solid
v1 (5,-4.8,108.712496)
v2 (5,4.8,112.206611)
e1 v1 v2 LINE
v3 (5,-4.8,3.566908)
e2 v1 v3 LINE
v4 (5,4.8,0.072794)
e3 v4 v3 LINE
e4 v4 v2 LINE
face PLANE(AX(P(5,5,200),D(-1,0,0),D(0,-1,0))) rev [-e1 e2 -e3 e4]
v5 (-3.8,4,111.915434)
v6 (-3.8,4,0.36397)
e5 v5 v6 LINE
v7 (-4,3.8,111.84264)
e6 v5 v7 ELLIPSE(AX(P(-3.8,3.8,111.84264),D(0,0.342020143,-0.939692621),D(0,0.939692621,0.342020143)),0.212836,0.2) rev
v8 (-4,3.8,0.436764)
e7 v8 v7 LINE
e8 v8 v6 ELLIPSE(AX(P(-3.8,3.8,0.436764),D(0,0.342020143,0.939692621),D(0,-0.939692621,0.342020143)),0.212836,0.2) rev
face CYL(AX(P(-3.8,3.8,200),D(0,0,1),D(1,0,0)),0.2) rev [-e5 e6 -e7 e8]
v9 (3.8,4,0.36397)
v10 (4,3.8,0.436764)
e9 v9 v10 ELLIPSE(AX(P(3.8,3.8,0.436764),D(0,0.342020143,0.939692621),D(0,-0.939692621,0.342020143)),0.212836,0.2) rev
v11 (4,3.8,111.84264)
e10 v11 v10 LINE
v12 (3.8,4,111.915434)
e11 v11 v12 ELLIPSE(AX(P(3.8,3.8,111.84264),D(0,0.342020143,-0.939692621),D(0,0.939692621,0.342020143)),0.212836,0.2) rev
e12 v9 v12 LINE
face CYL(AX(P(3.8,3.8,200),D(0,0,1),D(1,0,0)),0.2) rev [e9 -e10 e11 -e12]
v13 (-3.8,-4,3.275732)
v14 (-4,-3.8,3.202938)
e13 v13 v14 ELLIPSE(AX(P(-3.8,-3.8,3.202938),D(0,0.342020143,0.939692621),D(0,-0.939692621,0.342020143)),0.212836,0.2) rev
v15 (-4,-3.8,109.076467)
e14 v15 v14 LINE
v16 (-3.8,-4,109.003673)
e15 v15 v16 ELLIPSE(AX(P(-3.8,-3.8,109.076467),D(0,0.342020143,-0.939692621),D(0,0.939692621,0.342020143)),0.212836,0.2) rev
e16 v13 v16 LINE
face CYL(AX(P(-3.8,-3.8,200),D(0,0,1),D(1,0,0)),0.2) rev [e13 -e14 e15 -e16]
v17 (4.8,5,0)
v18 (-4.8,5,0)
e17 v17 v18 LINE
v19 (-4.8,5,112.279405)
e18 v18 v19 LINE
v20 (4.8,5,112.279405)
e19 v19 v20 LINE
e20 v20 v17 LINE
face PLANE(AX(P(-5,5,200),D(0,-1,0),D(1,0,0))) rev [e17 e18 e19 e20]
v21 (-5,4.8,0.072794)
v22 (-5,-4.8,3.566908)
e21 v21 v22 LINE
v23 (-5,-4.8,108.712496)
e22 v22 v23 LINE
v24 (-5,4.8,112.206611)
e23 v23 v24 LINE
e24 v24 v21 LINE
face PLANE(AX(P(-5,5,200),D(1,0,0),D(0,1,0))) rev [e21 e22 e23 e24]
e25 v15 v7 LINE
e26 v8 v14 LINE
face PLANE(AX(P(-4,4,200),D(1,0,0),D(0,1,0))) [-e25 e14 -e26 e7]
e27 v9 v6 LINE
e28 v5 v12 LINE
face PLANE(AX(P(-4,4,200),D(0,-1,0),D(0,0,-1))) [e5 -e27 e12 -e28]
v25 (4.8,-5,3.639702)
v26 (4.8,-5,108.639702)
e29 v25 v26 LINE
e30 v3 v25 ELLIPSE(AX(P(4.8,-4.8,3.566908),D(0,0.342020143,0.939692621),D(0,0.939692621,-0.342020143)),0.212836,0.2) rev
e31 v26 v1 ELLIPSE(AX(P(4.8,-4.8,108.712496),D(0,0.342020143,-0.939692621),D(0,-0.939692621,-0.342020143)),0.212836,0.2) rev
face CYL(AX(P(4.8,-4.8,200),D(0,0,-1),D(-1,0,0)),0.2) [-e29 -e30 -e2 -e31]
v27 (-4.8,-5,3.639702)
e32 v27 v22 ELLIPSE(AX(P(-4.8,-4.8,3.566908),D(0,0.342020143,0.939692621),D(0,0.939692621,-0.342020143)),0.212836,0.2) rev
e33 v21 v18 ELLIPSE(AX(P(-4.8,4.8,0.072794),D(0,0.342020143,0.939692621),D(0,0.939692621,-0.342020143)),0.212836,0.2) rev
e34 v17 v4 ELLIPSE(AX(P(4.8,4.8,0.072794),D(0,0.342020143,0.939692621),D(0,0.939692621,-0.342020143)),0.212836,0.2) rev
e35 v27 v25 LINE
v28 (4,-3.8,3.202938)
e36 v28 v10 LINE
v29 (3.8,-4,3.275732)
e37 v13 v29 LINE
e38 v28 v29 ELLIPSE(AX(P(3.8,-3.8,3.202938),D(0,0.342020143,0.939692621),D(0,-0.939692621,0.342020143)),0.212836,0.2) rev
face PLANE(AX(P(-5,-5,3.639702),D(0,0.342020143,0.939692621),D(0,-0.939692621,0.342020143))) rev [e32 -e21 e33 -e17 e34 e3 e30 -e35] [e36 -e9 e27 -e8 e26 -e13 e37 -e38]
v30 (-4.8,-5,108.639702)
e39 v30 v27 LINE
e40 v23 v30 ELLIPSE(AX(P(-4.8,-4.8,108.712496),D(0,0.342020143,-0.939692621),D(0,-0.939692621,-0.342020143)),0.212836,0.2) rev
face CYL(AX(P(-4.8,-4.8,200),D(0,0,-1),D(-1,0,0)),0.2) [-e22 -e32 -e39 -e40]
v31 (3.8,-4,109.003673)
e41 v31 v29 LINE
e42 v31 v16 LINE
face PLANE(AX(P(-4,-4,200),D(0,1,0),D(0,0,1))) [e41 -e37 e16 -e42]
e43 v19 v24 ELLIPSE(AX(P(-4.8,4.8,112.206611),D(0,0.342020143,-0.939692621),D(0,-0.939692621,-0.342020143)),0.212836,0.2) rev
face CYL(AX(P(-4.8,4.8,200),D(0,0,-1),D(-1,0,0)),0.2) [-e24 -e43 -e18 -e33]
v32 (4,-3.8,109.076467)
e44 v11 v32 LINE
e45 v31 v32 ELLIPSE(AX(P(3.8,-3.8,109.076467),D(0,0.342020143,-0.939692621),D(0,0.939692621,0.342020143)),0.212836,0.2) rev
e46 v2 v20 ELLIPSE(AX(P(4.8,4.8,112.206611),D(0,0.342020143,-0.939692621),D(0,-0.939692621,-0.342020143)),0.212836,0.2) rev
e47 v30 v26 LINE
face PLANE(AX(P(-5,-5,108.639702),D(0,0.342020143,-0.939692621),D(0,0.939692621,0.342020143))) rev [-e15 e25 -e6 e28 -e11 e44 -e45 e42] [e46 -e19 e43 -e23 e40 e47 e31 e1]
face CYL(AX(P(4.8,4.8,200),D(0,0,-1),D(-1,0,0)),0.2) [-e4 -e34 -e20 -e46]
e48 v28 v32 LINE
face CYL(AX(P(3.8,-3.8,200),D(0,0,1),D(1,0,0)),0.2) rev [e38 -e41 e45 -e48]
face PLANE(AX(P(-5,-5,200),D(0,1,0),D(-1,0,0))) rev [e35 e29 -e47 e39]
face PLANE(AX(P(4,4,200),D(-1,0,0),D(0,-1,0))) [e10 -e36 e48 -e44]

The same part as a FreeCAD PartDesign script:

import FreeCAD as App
import Part
import Sketcher

V = App.Vector
Q = App.Units.Quantity


def edges_at(feature, points):
    """Names of the edges that pass closest to the given points."""
    edges = feature.Shape.Edges
    near = lambda p: min(range(len(edges)), key=lambda i: edges[i].distToShape(Part.Vertex(*p))[0])
    return sorted({f"Edge{near(p) + 1}" for p in points})


def add_polygon(sketch, points):
    """Adds a closed chain of lines whose ends are joined by coincident constraints."""
    first, n = sketch.GeometryCount, len(points)
    for a, b in zip(points, points[1:] + points[:1]):
        sketch.addGeometry(Part.LineSegment(App.Vector(*a, 0), App.Vector(*b, 0)), False)
    for i in range(n):
        sketch.addConstraint(Sketcher.Constraint("Coincident", first + i, 2, first + (i + 1) % n, 1))

doc = App.newDocument("Part")
body = doc.addObject("PartDesign::Body", "Body")

sketch1 = body.newObject("Sketcher::SketchObject", "Sketch")
sketch1.AttachmentSupport = (doc.getObject("XY_Plane"), [""])
sketch1.MapMode = "FlatFace"
add_polygon(sketch1, [(-5, 5), (-5, -5), (5, -5), (5, 5)])
add_polygon(sketch1, [(4, -4), (-4, -4), (-4, 4), (4, 4)])
sketch1.addConstraint(Sketcher.Constraint("Vertical", 0))
sketch1.addConstraint(Sketcher.Constraint("Horizontal", 1))
sketch1.addConstraint(Sketcher.Constraint("Vertical", 2))
sketch1.addConstraint(Sketcher.Constraint("Horizontal", 3))
sketch1.addConstraint(Sketcher.Constraint("Horizontal", 4))
sketch1.addConstraint(Sketcher.Constraint("Vertical", 5))
sketch1.addConstraint(Sketcher.Constraint("Horizontal", 6))
sketch1.addConstraint(Sketcher.Constraint("Vertical", 7))
sketch1.addConstraint(Sketcher.Constraint("Symmetric", 0, 2, 2, 2, -1, 1))
sketch1.addConstraint(Sketcher.Constraint("Symmetric", 4, 2, 6, 2, -1, 1))
sketch1.addConstraint(Sketcher.Constraint("Equal", 3, 0))
sketch1.addConstraint(Sketcher.Constraint("Equal", 6, 5))
sketch1.addConstraint(Sketcher.Constraint("DistanceX", 1, 1, 1, 2, 10.0))
sketch1.addConstraint(Sketcher.Constraint("DistanceX", 4, 2, 4, 1, 8.0))
pad1 = body.newObject("PartDesign::Pad", "Pad")
pad1.Profile = sketch1
pad1.Length = 200
doc.recompute()

fillet = body.newObject("PartDesign::Fillet", "Fillet")
fillet.Base = (pad1, edges_at(pad1, [
    (-4, 4, 100),
    (-4, -4, 100),
    (4, -4, 100),
    (4, 4, 100),
    (-5, 5, 100),
    (5, 5, 100),
    (5, -5, 100),
    (-5, -5, 100),
]))
fillet.Radius = 0.2

sketch2 = body.newObject("Sketcher::SketchObject", "Sketch001")
sketch2.AttachmentSupport = (doc.getObject("YZ_Plane"), [""])
sketch2.MapMode = "FlatFace"
sketch2.AttachmentOffset = App.Placement(V(0, 0, 5), App.Rotation())
add_polygon(sketch2, [(-5, 0), (5, 0), (-5, 3.6)])
sketch2.addConstraint(Sketcher.Constraint("Horizontal", 0))
sketch2.addConstraint(Sketcher.Constraint("Vertical", 2))
sketch2.addConstraint(Sketcher.Constraint("Symmetric", 0, 2, 2, 2, -1, 1))
sketch2.addConstraint(Sketcher.Constraint("DistanceX", 0, 1, 0, 2, 10.0))
sketch2.addConstraint(Sketcher.Constraint("Angle", 1, Q("160 deg")))
pocket1 = body.newObject("PartDesign::Pocket", "Pocket")
pocket1.Profile = sketch2
pocket1.Type = "ThroughAll"

sketch3 = body.newObject("Sketcher::SketchObject", "Sketch002")
sketch3.AttachmentSupport = (doc.getObject("YZ_Plane"), [""])
sketch3.MapMode = "FlatFace"
sketch3.AttachmentOffset = App.Placement(V(0, 0, 5), App.Rotation())
add_polygon(sketch3, [(-5, 109), (5, 112), (5, 200), (-5, 200)])
sketch3.addConstraint(Sketcher.Constraint("Vertical", 1))
sketch3.addConstraint(Sketcher.Constraint("Horizontal", 2))
sketch3.addConstraint(Sketcher.Constraint("Vertical", 3))
sketch3.addConstraint(Sketcher.Constraint("DistanceX", 2, 2, 2, 1, 10.0))
sketch3.addConstraint(Sketcher.Constraint("Angle", 0, Q("20 deg")))
sketch3.addConstraint(Sketcher.Constraint("DistanceX", -1, 1, 0, 2, 5.0))
sketch3.addConstraint(Sketcher.Constraint("DistanceY", -1, 1, 1, 2, 200.0))
sketch3.addConstraint(Sketcher.Constraint("DistanceY", 1, 1, 1, 2, 87.720595))
pocket2 = body.newObject("PartDesign::Pocket", "Pocket001")
pocket2.Profile = sketch3
pocket2.Type = "ThroughAll"

doc.recompute()
